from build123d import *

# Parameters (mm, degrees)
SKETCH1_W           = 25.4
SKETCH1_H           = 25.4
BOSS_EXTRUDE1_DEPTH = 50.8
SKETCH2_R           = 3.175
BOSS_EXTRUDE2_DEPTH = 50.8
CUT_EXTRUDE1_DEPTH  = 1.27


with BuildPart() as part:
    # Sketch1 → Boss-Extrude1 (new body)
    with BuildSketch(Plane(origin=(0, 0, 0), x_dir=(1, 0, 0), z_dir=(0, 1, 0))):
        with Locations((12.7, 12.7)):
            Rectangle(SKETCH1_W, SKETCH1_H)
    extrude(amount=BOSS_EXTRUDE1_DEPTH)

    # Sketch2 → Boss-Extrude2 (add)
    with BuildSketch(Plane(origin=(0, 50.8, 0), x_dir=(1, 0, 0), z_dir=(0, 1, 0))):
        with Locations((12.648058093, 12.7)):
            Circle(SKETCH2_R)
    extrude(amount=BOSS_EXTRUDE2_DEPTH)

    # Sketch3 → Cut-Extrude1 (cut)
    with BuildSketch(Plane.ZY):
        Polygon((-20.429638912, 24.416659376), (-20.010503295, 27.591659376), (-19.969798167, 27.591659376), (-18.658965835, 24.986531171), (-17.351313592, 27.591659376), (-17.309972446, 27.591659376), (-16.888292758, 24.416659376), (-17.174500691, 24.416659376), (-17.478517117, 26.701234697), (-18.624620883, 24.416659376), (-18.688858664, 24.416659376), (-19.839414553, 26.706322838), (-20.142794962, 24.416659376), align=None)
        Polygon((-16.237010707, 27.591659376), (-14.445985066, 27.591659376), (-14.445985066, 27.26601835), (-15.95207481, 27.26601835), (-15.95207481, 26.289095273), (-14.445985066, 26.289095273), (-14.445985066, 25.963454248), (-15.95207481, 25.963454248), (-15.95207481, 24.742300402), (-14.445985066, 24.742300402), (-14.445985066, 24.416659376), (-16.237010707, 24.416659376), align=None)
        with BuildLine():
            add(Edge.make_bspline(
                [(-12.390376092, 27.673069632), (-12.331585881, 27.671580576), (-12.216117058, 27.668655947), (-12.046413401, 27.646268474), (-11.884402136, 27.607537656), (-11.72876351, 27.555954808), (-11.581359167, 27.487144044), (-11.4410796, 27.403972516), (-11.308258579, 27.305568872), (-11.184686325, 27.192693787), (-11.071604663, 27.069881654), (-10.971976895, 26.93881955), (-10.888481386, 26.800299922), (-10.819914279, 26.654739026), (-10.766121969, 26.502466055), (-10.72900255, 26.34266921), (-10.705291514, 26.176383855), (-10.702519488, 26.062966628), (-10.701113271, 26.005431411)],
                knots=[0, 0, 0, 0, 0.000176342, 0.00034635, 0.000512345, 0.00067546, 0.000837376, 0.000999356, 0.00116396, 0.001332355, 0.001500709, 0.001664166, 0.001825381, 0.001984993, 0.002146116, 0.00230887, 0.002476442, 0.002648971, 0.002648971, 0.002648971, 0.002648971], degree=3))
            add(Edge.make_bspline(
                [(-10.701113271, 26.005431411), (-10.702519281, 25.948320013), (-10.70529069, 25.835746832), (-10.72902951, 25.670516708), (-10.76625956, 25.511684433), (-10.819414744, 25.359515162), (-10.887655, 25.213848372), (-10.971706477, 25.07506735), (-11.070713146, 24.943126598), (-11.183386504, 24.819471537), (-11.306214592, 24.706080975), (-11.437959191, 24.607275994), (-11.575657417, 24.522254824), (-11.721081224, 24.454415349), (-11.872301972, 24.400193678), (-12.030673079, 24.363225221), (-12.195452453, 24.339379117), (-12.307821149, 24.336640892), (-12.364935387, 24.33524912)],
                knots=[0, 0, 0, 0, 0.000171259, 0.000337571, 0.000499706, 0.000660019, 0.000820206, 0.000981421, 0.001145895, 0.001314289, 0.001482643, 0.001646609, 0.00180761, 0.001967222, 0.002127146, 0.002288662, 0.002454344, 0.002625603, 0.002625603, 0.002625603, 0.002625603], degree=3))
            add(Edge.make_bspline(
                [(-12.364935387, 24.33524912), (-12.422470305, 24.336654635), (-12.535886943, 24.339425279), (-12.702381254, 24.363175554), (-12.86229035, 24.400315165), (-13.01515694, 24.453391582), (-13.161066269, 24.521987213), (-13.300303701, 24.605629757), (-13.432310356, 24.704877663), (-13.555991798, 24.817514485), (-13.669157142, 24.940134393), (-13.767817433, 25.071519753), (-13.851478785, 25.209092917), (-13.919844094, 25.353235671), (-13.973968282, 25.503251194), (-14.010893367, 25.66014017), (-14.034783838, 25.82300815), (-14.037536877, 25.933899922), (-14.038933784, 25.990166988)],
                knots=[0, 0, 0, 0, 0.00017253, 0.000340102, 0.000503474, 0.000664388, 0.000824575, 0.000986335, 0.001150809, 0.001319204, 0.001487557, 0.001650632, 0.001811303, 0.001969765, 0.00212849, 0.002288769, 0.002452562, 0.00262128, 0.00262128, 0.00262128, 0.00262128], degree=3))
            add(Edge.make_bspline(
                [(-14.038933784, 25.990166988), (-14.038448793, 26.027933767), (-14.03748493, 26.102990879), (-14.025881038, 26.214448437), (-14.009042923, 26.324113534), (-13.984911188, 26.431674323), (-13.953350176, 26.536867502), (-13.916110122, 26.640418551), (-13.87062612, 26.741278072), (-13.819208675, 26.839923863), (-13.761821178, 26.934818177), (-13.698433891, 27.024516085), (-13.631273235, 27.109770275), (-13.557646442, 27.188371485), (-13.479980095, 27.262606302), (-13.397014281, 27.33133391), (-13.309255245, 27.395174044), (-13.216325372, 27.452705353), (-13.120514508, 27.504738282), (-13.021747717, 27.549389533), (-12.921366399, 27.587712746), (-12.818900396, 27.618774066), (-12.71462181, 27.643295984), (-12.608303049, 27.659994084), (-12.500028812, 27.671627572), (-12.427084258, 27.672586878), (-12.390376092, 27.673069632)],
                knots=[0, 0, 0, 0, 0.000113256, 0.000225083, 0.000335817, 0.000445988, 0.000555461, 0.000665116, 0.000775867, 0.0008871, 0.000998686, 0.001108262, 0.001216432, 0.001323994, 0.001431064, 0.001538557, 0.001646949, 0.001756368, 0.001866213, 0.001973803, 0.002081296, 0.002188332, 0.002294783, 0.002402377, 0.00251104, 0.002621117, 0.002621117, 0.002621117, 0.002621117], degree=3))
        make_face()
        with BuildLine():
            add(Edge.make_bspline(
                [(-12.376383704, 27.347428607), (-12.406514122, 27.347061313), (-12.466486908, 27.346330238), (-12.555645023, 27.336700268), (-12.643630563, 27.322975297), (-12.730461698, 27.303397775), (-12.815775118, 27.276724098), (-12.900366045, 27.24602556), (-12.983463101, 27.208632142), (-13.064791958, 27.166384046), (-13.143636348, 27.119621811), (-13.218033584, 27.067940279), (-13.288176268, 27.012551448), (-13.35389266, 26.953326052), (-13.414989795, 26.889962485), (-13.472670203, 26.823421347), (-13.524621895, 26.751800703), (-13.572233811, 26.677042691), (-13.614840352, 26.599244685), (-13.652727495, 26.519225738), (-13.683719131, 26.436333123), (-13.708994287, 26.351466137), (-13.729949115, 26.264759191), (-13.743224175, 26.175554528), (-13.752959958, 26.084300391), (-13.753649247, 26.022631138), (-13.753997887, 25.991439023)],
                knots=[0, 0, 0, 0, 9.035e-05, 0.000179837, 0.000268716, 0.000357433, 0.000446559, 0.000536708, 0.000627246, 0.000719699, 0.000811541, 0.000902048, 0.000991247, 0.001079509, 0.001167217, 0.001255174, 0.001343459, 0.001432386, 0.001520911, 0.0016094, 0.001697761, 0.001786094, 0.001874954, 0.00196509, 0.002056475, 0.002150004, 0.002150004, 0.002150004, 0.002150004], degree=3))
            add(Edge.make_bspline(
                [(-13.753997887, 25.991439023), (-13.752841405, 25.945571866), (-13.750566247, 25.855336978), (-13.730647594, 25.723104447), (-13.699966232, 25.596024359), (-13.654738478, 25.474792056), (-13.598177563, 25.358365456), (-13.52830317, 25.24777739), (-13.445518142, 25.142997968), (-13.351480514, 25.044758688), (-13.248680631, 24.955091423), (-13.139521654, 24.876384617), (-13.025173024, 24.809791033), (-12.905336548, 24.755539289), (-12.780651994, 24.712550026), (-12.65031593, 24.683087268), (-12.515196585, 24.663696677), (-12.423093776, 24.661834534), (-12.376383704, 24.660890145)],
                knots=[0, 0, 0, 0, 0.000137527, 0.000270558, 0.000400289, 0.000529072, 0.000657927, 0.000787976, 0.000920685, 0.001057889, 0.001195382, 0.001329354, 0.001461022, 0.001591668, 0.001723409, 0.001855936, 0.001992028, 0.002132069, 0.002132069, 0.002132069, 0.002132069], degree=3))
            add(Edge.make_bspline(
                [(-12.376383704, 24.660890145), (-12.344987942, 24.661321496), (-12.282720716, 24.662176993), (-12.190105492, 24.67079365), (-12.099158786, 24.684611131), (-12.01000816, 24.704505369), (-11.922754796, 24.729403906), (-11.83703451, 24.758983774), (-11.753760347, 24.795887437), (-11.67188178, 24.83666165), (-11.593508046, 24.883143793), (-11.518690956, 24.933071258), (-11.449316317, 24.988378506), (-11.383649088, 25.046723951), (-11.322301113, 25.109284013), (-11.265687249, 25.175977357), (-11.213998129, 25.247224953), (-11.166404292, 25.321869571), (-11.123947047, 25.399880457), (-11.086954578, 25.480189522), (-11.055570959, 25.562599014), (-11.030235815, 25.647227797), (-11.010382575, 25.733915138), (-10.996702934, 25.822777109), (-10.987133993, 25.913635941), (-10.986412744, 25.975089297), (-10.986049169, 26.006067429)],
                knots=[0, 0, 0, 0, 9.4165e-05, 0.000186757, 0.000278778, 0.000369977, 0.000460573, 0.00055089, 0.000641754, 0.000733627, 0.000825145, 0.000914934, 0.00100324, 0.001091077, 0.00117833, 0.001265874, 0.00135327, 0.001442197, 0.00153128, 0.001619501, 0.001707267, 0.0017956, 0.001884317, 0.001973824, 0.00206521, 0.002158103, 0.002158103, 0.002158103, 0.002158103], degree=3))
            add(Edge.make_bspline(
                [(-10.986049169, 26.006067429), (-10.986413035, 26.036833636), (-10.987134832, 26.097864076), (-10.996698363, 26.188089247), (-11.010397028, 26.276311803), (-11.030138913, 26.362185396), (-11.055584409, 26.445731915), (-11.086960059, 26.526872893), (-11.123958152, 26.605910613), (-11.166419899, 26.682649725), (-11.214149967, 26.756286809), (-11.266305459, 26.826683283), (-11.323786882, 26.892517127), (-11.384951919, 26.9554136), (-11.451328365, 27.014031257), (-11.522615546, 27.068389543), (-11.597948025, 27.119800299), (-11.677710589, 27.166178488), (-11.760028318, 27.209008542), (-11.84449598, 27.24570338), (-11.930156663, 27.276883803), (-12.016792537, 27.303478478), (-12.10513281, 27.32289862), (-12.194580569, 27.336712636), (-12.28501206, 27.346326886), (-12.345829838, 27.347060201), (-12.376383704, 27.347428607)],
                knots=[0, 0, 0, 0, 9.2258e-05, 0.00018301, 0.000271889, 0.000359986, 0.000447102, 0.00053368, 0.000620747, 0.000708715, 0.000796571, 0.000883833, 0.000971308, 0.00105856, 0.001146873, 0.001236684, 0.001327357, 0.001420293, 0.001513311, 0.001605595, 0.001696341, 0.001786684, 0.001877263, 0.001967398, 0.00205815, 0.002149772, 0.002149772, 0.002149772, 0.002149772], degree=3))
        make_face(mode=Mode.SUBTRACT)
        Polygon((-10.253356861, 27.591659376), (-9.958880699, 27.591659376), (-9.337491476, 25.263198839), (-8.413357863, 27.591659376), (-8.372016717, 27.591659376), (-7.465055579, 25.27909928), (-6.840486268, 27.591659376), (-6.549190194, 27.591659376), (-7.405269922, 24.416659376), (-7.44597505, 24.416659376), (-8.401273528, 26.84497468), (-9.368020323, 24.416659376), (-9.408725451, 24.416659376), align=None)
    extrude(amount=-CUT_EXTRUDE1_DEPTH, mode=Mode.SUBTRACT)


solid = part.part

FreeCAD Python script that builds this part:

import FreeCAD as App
import Part
import Sketcher
from FreeCAD import Vector
Q = App.Units.Quantity


def add_polygon(sketch, points):
    """Adds a closed chain of lines whose ends are joined by coincident constraints."""
    first, n = sketch.GeometryCount, len(points)
    for a, b in zip(points, points[1:] + points[:1]):
        sketch.addGeometry(Part.LineSegment(App.Vector(*a, 0), App.Vector(*b, 0)), False)
    for i in range(n):
        sketch.addConstraint(Sketcher.Constraint("Coincident", first + i, 2, first + (i + 1) % n, 1))

doc = App.newDocument("Part")
body = doc.addObject("PartDesign::Body", "Body")

# Sketch on XZ plane
sketch1 = body.newObject("Sketcher::SketchObject", "Sketch")
sketch1.AttachmentSupport = (doc.getObject("XZ_Plane"), [""])
sketch1.MapMode = "FlatFace"
add_polygon(sketch1, [(0, -25), (0, 0), (25, 0), (25, -25)])  # lines 0-3
sketch1.addConstraint([
    Sketcher.Constraint("Vertical", 0),
    Sketcher.Constraint("Horizontal", 1),
    Sketcher.Constraint("Vertical", 2),
    Sketcher.Constraint("Horizontal", 3),
    Sketcher.Constraint("Coincident", 0, 2, -1, 1),
    Sketcher.Constraint("Equal", 3, 0),
    Sketcher.Constraint("DistanceX", 1, 1, 1, 2, Q("1 in")),
])
pad1 = body.newObject("PartDesign::Pad", "Pad")
pad1.Profile = sketch1
pad1.Length = Q("2 in")
pad1.Reversed = True

# Sketch on XZ plane
sketch2 = body.newObject("Sketcher::SketchObject", "Sketch001")
sketch2.AttachmentSupport = (doc.getObject("XZ_Plane"), [""])
sketch2.MapMode = "FlatFace"
sketch2.AttachmentOffset = App.Placement(Vector(0, 0, -2 * 25.4), App.Rotation())
sketch2.addGeometry(Part.Circle(Vector(12.6, -12.7, 0), Vector(0, 0, 1), 3.2), False)
sketch2.addConstraint([
    Sketcher.Constraint("Diameter", 0, Q("0.25 in")),
    Sketcher.Constraint("DistanceY", 0, 3, -1, 1, Q("0.5 in")),
    Sketcher.Constraint("DistanceX", -1, 1, 0, 3, Q("12.648058 mm")),
])
pad2 = body.newObject("PartDesign::Pad", "Pad001")
pad2.Profile = sketch2
pad2.Length = Q("2 in")
pad2.Reversed = True

# Sketch on YZ plane
sketch3 = body.newObject("Sketcher::SketchObject", "Sketch002")
sketch3.AttachmentSupport = (doc.getObject("YZ_Plane"), [""])
sketch3.MapMode = "FlatFace"
add_polygon(sketch3, [(27.591659, -20.010503), (24.416659, -20.429639), (24.416659, -20.142795), (26.706323, -19.839415), (24.416659, -18.688859), (24.416659, -18.624621), (26.701235, -17.478517), (24.416659, -17.174501), (24.416659, -16.888293), (27.591659, -17.309972), (27.591659, -17.351314), (24.986531, -18.658966), (27.591659, -19.969798)])  # lines 0-12
add_polygon(sketch3, [(27.591659, -14.445985), (27.591659, -16.237011), (24.416659, -16.237011), (24.416659, -14.445985), (24.7423, -14.445985), (24.7423, -15.952075), (25.963454, -15.952075), (25.963454, -14.445985), (26.289095, -14.445985), (26.289095, -15.952075), (27.266018, -15.952075), (27.266018, -14.445985)])  # lines 13-24
sketch3.addGeometry(Part.BSplineCurve([Vector(27.67307, -12.390376, 0), Vector(27.671581, -12.331586, 0), Vector(27.668656, -12.216117, 0), Vector(27.646268, -12.046413, 0), Vector(27.607538, -11.884402, 0), Vector(27.555955, -11.728764, 0), Vector(27.487144, -11.581359, 0), Vector(27.403973, -11.44108, 0), Vector(27.305569, -11.308259, 0), Vector(27.192694, -11.184686, 0), Vector(27.069882, -11.071605, 0), Vector(26.93882, -10.971977, 0), Vector(26.8003, -10.888481, 0), Vector(26.654739, -10.819914, 0), Vector(26.502466, -10.766122, 0), Vector(26.342669, -10.729003, 0), Vector(26.176384, -10.705292, 0), Vector(26.062967, -10.702519, 0), Vector(26.005431, -10.701113, 0)], [4, 1, 1, 1, 1, 1, 1, 1, 1, 1, 1, 1, 1, 1, 1, 1, 4], [0, 0.000176342, 0.00034635, 0.000512345, 0.00067546, 0.000837376, 0.000999356, 0.00116396, 0.001332355, 0.001500709, 0.001664166, 0.001825381, 0.001984993, 0.002146116, 0.00230887, 0.002476442, 0.002648971], False, 3, [1, 1, 1, 1, 1, 1, 1, 1, 1, 1, 1, 1, 1, 1, 1, 1, 1, 1, 1], False), False)  # 25
sketch3.addGeometry(Part.BSplineCurve([Vector(25.990167, -14.038934, 0), Vector(26.027934, -14.038449, 0), Vector(26.102991, -14.037485, 0), Vector(26.214448, -14.025881, 0), Vector(26.324114, -14.009043, 0), Vector(26.431674, -13.984911, 0), Vector(26.536868, -13.95335, 0), Vector(26.640419, -13.91611, 0), Vector(26.741278, -13.870626, 0), Vector(26.839924, -13.819209, 0), Vector(26.934818, -13.761821, 0), Vector(27.024516, -13.698434, 0), Vector(27.10977, -13.631273, 0), Vector(27.188371, -13.557646, 0), Vector(27.262606, -13.47998, 0), Vector(27.331334, -13.397014, 0), Vector(27.395174, -13.309255, 0), Vector(27.452705, -13.216325, 0), Vector(27.504738, -13.120515, 0), Vector(27.54939, -13.021748, 0), Vector(27.587713, -12.921366, 0), Vector(27.618774, -12.8189, 0), Vector(27.643296, -12.714622, 0), Vector(27.659994, -12.608303, 0), Vector(27.671628, -12.500029, 0), Vector(27.672587, -12.427084, 0), Vector(27.67307, -12.390376, 0)], [4, 1, 1, 1, 1, 1, 1, 1, 1, 1, 1, 1, 1, 1, 1, 1, 1, 1, 1, 1, 1, 1, 1, 1, 4], [0, 0.000113256, 0.000225083, 0.000335817, 0.000445988, 0.000555461, 0.000665116, 0.000775867, 0.0008871, 0.000998686, 0.001108262, 0.001216432, 0.001323994, 0.001431064, 0.001538557, 0.001646949, 0.001756368, 0.001866213, 0.001973803, 0.002081296, 0.002188332, 0.002294783, 0.002402377, 0.00251104, 0.002621117], False, 3, [1, 1, 1, 1, 1, 1, 1, 1, 1, 1, 1, 1, 1, 1, 1, 1, 1, 1, 1, 1, 1, 1, 1, 1, 1, 1, 1], False), False)  # 26
sketch3.addGeometry(Part.BSplineCurve([Vector(24.335249, -12.364935, 0), Vector(24.336655, -12.42247, 0), Vector(24.339425, -12.535887, 0), Vector(24.363176, -12.702381, 0), Vector(24.400315, -12.86229, 0), Vector(24.453392, -13.015157, 0), Vector(24.521987, -13.161066, 0), Vector(24.60563, -13.300304, 0), Vector(24.704878, -13.43231, 0), Vector(24.817514, -13.555992, 0), Vector(24.940134, -13.669157, 0), Vector(25.07152, -13.767817, 0), Vector(25.209093, -13.851479, 0), Vector(25.353236, -13.919844, 0), Vector(25.503251, -13.973968, 0), Vector(25.66014, -14.010893, 0), Vector(25.823008, -14.034784, 0), Vector(25.9339, -14.037537, 0), Vector(25.990167, -14.038934, 0)], [4, 1, 1, 1, 1, 1, 1, 1, 1, 1, 1, 1, 1, 1, 1, 1, 4], [0, 0.00017253, 0.000340102, 0.000503474, 0.000664388, 0.000824575, 0.000986335, 0.001150809, 0.001319204, 0.001487557, 0.001650632, 0.001811303, 0.001969765, 0.00212849, 0.002288769, 0.002452562, 0.00262128], False, 3, [1, 1, 1, 1, 1, 1, 1, 1, 1, 1, 1, 1, 1, 1, 1, 1, 1, 1, 1], False), False)  # 27
sketch3.addGeometry(Part.BSplineCurve([Vector(26.005431, -10.701113, 0), Vector(25.94832, -10.702519, 0), Vector(25.835747, -10.705291, 0), Vector(25.670517, -10.72903, 0), Vector(25.511684, -10.76626, 0), Vector(25.359515, -10.819415, 0), Vector(25.213848, -10.887655, 0), Vector(25.075067, -10.971706, 0), Vector(24.943127, -11.070713, 0), Vector(24.819472, -11.183387, 0), Vector(24.706081, -11.306215, 0), Vector(24.607276, -11.437959, 0), Vector(24.522255, -11.575657, 0), Vector(24.454415, -11.721081, 0), Vector(24.400194, -11.872302, 0), Vector(24.363225, -12.030673, 0), Vector(24.339379, -12.195452, 0), Vector(24.336641, -12.307821, 0), Vector(24.335249, -12.364935, 0)], [4, 1, 1, 1, 1, 1, 1, 1, 1, 1, 1, 1, 1, 1, 1, 1, 4], [0, 0.000171259, 0.000337571, 0.000499706, 0.000660019, 0.000820206, 0.000981421, 0.001145895, 0.001314289, 0.001482643, 0.001646609, 0.00180761, 0.001967222, 0.002127146, 0.002288662, 0.002454344, 0.002625603], False, 3, [1, 1, 1, 1, 1, 1, 1, 1, 1, 1, 1, 1, 1, 1, 1, 1, 1, 1, 1], False), False)  # 28
sketch3.addGeometry(Part.BSplineCurve([Vector(26.006067, -10.986049, 0), Vector(26.036834, -10.986413, 0), Vector(26.097864, -10.987135, 0), Vector(26.188089, -10.996698, 0), Vector(26.276312, -11.010397, 0), Vector(26.362185, -11.030139, 0), Vector(26.445732, -11.055584, 0), Vector(26.526873, -11.08696, 0), Vector(26.605911, -11.123958, 0), Vector(26.68265, -11.16642, 0), Vector(26.756287, -11.21415, 0), Vector(26.826683, -11.266305, 0), Vector(26.892517, -11.323787, 0), Vector(26.955414, -11.384952, 0), Vector(27.014031, -11.451328, 0), Vector(27.06839, -11.522616, 0), Vector(27.1198, -11.597948, 0), Vector(27.166178, -11.677711, 0), Vector(27.209009, -11.760028, 0), Vector(27.245703, -11.844496, 0), Vector(27.276884, -11.930157, 0), Vector(27.303478, -12.016793, 0), Vector(27.322899, -12.105133, 0), Vector(27.336713, -12.194581, 0), Vector(27.346327, -12.285012, 0), Vector(27.34706, -12.34583, 0), Vector(27.347429, -12.376384, 0)], [4, 1, 1, 1, 1, 1, 1, 1, 1, 1, 1, 1, 1, 1, 1, 1, 1, 1, 1, 1, 1, 1, 1, 1, 4], [0, 0.000092258, 0.00018301, 0.000271889, 0.000359986, 0.000447102, 0.00053368, 0.000620747, 0.000708715, 0.000796571, 0.000883833, 0.000971308, 0.00105856, 0.001146873, 0.001236684, 0.001327357, 0.001420293, 0.001513311, 0.001605595, 0.001696341, 0.001786684, 0.001877263, 0.001967398, 0.00205815, 0.002149772], False, 3, [1, 1, 1, 1, 1, 1, 1, 1, 1, 1, 1, 1, 1, 1, 1, 1, 1, 1, 1, 1, 1, 1, 1, 1, 1, 1, 1], False), False)  # 29
sketch3.addGeometry(Part.BSplineCurve([Vector(24.66089, -12.376384, 0), Vector(24.661321, -12.344988, 0), Vector(24.662177, -12.282721, 0), Vector(24.670794, -12.190105, 0), Vector(24.684611, -12.099159, 0), Vector(24.704505, -12.010008, 0), Vector(24.729404, -11.922755, 0), Vector(24.758984, -11.837035, 0), Vector(24.795887, -11.75376, 0), Vector(24.836662, -11.671882, 0), Vector(24.883144, -11.593508, 0), Vector(24.933071, -11.518691, 0), Vector(24.988379, -11.449316, 0), Vector(25.046724, -11.383649, 0), Vector(25.109284, -11.322301, 0), Vector(25.175977, -11.265687, 0), Vector(25.247225, -11.213998, 0), Vector(25.32187, -11.166404, 0), Vector(25.39988, -11.123947, 0), Vector(25.48019, -11.086955, 0), Vector(25.562599, -11.055571, 0), Vector(25.647228, -11.030236, 0), Vector(25.733915, -11.010383, 0), Vector(25.822777, -10.996703, 0), Vector(25.913636, -10.987134, 0), Vector(25.975089, -10.986413, 0), Vector(26.006067, -10.986049, 0)], [4, 1, 1, 1, 1, 1, 1, 1, 1, 1, 1, 1, 1, 1, 1, 1, 1, 1, 1, 1, 1, 1, 1, 1, 4], [0, 0.000094165, 0.000186757, 0.000278778, 0.000369977, 0.000460573, 0.00055089, 0.000641754, 0.000733627, 0.000825145, 0.000914934, 0.00100324, 0.001091077, 0.00117833, 0.001265874, 0.00135327, 0.001442197, 0.00153128, 0.001619501, 0.001707267, 0.0017956, 0.001884317, 0.001973824, 0.00206521, 0.002158103], False, 3, [1, 1, 1, 1, 1, 1, 1, 1, 1, 1, 1, 1, 1, 1, 1, 1, 1, 1, 1, 1, 1, 1, 1, 1, 1, 1, 1], False), False)  # 30
sketch3.addGeometry(Part.BSplineCurve([Vector(25.991439, -13.753998, 0), Vector(25.945572, -13.752841, 0), Vector(25.855337, -13.750566, 0), Vector(25.723104, -13.730648, 0), Vector(25.596024, -13.699966, 0), Vector(25.474792, -13.654738, 0), Vector(25.358365, -13.598178, 0), Vector(25.247777, -13.528303, 0), Vector(25.142998, -13.445518, 0), Vector(25.044759, -13.351481, 0), Vector(24.955091, -13.248681, 0), Vector(24.876385, -13.139522, 0), Vector(24.809791, -13.025173, 0), Vector(24.755539, -12.905337, 0), Vector(24.71255, -12.780652, 0), Vector(24.683087, -12.650316, 0), Vector(24.663697, -12.515197, 0), Vector(24.661835, -12.423094, 0), Vector(24.66089, -12.376384, 0)], [4, 1, 1, 1, 1, 1, 1, 1, 1, 1, 1, 1, 1, 1, 1, 1, 4], [0, 0.000137527, 0.000270558, 0.000400289, 0.000529072, 0.000657927, 0.000787976, 0.000920685, 0.001057889, 0.001195382, 0.001329354, 0.001461022, 0.001591668, 0.001723409, 0.001855936, 0.001992028, 0.002132069], False, 3, [1, 1, 1, 1, 1, 1, 1, 1, 1, 1, 1, 1, 1, 1, 1, 1, 1, 1, 1], False), False)  # 31
sketch3.addGeometry(Part.BSplineCurve([Vector(27.347429, -12.376384, 0), Vector(27.347061, -12.406514, 0), Vector(27.34633, -12.466487, 0), Vector(27.3367, -12.555645, 0), Vector(27.322975, -12.643631, 0), Vector(27.303398, -12.730462, 0), Vector(27.276724, -12.815775, 0), Vector(27.246026, -12.900366, 0), Vector(27.208632, -12.983463, 0), Vector(27.166384, -13.064792, 0), Vector(27.119622, -13.143636, 0), Vector(27.06794, -13.218034, 0), Vector(27.012551, -13.288176, 0), Vector(26.953326, -13.353893, 0), Vector(26.889962, -13.41499, 0), Vector(26.823421, -13.47267, 0), Vector(26.751801, -13.524622, 0), Vector(26.677043, -13.572234, 0), Vector(26.599245, -13.61484, 0), Vector(26.519226, -13.652727, 0), Vector(26.436333, -13.683719, 0), Vector(26.351466, -13.708994, 0), Vector(26.264759, -13.729949, 0), Vector(26.175555, -13.743224, 0), Vector(26.0843, -13.75296, 0), Vector(26.022631, -13.753649, 0), Vector(25.991439, -13.753998, 0)], [4, 1, 1, 1, 1, 1, 1, 1, 1, 1, 1, 1, 1, 1, 1, 1, 1, 1, 1, 1, 1, 1, 1, 1, 4], [0, 0.00009035, 0.000179837, 0.000268716, 0.000357433, 0.000446559, 0.000536708, 0.000627246, 0.000719699, 0.000811541, 0.000902048, 0.000991247, 0.001079509, 0.001167217, 0.001255174, 0.001343459, 0.001432386, 0.001520911, 0.0016094, 0.001697761, 0.001786094, 0.001874954, 0.00196509, 0.002056475, 0.002150004], False, 3, [1, 1, 1, 1, 1, 1, 1, 1, 1, 1, 1, 1, 1, 1, 1, 1, 1, 1, 1, 1, 1, 1, 1, 1, 1, 1, 1], False), False)  # 32
add_polygon(sketch3, [(27.591659, -9.958881), (27.591659, -10.253357), (24.416659, -9.408725), (24.416659, -9.36802), (26.844975, -8.401274), (24.416659, -7.445975), (24.416659, -7.40527), (27.591659, -6.54919), (27.591659, -6.840486), (25.279099, -7.465056), (27.591659, -8.372017), (27.591659, -8.413358), (25.263199, -9.337491)])  # lines 33-45
sketch3.addConstraint([
    Sketcher.Constraint("Block", 25),
    Sketcher.Constraint("Block", 26),
    Sketcher.Constraint("Block", 27),
    Sketcher.Constraint("Block", 28),
    Sketcher.Constraint("Block", 29),
    Sketcher.Constraint("Block", 30),
    Sketcher.Constraint("Block", 31),
    Sketcher.Constraint("Block", 32),
    Sketcher.Constraint("Vertical", 1),
    Sketcher.Constraint("Vertical", 4),
    Sketcher.Constraint("Vertical", 7),
    Sketcher.Constraint("Vertical", 9),
    Sketcher.Constraint("Vertical", 12),
    Sketcher.Constraint("Vertical", 13),
    Sketcher.Constraint("Horizontal", 14),
    Sketcher.Constraint("Vertical", 15),
    Sketcher.Constraint("Horizontal", 16),
    Sketcher.Constraint("Vertical", 17),
    Sketcher.Constraint("Horizontal", 18),
    Sketcher.Constraint("Vertical", 19),
    Sketcher.Constraint("Horizontal", 20),
    Sketcher.Constraint("Vertical", 21),
    Sketcher.Constraint("Horizontal", 22),
    Sketcher.Constraint("Vertical", 23),
    Sketcher.Constraint("Horizontal", 24),
    Sketcher.Constraint("Vertical", 33),
    Sketcher.Constraint("Vertical", 35),
    Sketcher.Constraint("Vertical", 38),
    Sketcher.Constraint("Vertical", 40),
    Sketcher.Constraint("Vertical", 43),
    Sketcher.Constraint("Horizontal", 16, 2, 19, 2),
    Sketcher.Constraint("Horizontal", 18, 2, 21, 2),
    Sketcher.Constraint("Horizontal", 20, 2, 23, 2),
    Sketcher.Constraint("Vertical", 1, 2, 3, 2),
    Sketcher.Constraint("Vertical", 4, 2, 6, 2),
    Sketcher.Constraint("Vertical", 9, 2, 11, 2),
    Sketcher.Constraint("Vertical", 12, 2, 13, 2),
    Sketcher.Constraint("Vertical", 7, 2, 14, 2),
    Sketcher.Constraint("Vertical", 24, 2, 33, 2),
    Sketcher.Constraint("Vertical", 15, 2, 34, 2),
    Sketcher.Constraint("Vertical", 35, 2, 37, 2),
    Sketcher.Constraint("Vertical", 33, 2, 39, 2),
    Sketcher.Constraint("Vertical", 40, 2, 42, 2),
    Sketcher.Constraint("Equal", 16, 20),
    Sketcher.Constraint("Equal", 20, 24),
    Sketcher.Constraint("Equal", 12, 35),
    Sketcher.Constraint("Equal", 35, 38),
    Sketcher.Constraint("Equal", 9, 43),
    Sketcher.Constraint("DistanceX", 14, 2, 14, 1, Q("0.125 in")),
    Sketcher.Constraint("Angle", 6, Q("172.419985 deg")),
    Sketcher.Constraint("DistanceY", 41, 2, -1, 1, Q("0.2938998 in")),
    Sketcher.Constraint("Distance", 10, Q("2.914901 mm")),
    Sketcher.Constraint("DistanceX", 16, 1, 16, 2, Q("0.325641 mm")),
    Sketcher.Constraint("DistanceY", 9, 2, 9, 1, Q("0.041341 mm")),
    Sketcher.Constraint("DistanceY", 17, 2, 17, 1, Q("1.50609 mm")),
    Sketcher.Constraint("DistanceY", 6, 2, -1, 1, Q("17.174501 mm")),
    Sketcher.Constraint("DistanceY", 11, 2, -1, 1, Q("19.969798 mm")),
    Sketcher.Constraint("DistanceX", -1, 1, 16, 2, Q("24.7423 mm")),
    Sketcher.Constraint("DistanceX", -1, 1, 41, 2, Q("25.279099 mm")),
    Sketcher.Constraint("DistanceX", -1, 1, 44, 2, Q("25.263199 mm")),
    Sketcher.Constraint("DistanceY", 2, 2, 9, 2, Q("2.488101 mm")),
    Sketcher.Constraint("DistanceY", 36, 2, 37, 2, Q("0.955298 mm")),
    Sketcher.Constraint("DistanceY", 33, 2, 43, 2, Q("1.839999 mm")),
    Sketcher.Constraint("Distance", 5, Q("2.555942 mm")),
    Sketcher.Constraint("Distance", 8, Q("3.20288 mm")),
    Sketcher.Constraint("Distance", 11, Q("2.916329 mm")),
    Sketcher.Constraint("Distance", 36, Q("2.613678 mm")),
    Sketcher.Constraint("Distance", 39, Q("3.288388 mm")),
    Sketcher.Constraint("Distance", 42, Q("2.484052 mm")),
    Sketcher.Constraint("Distance", 45, Q("2.409949 mm")),
    Sketcher.Constraint("DistanceX", 18, 1, 18, 2, Q("1.221154 mm")),
    Sketcher.Constraint("DistanceY", 1, 1, 1, 2, Q("0.286844 mm")),
    Sketcher.Constraint("DistanceY", 4, 1, 4, 2, Q("0.064238 mm")),
    Sketcher.Constraint("DistanceY", 7, 1, 7, 2, Q("0.286208 mm")),
    Sketcher.Constraint("DistanceY", 12, 2, 12, 1, Q("0.040705 mm")),
    Sketcher.Constraint("DistanceY", 13, 2, 13, 1, Q("1.791026 mm")),
    Sketcher.Constraint("DistanceY", 33, 2, 33, 1, Q("0.294476 mm")),
    Sketcher.Constraint("DistanceY", 40, 2, 40, 1, Q("0.291296 mm")),
    Sketcher.Constraint("DistanceY", 0, 2, -1, 1, Q("20.429639 mm")),
    Sketcher.Constraint("DistanceY", 3, 2, -1, 1, Q("18.688859 mm")),
    Sketcher.Constraint("DistanceY", 13, 2, -1, 1, Q("16.237011 mm")),
    Sketcher.Constraint("DistanceY", 35, 2, -1, 1, Q("9.36802 mm")),
    Sketcher.Constraint("DistanceY", 38, 2, -1, 1, Q("7.40527 mm")),
    Sketcher.Constraint("DistanceX", 5, 2, 2, 2, Q("0.005088 mm")),
])
pocket1 = body.newObject("PartDesign::Pocket", "Pocket")
pocket1.Profile = sketch3
pocket1.Length = Q("0.05 in")
pocket1.Reversed = True

doc.recompute()
